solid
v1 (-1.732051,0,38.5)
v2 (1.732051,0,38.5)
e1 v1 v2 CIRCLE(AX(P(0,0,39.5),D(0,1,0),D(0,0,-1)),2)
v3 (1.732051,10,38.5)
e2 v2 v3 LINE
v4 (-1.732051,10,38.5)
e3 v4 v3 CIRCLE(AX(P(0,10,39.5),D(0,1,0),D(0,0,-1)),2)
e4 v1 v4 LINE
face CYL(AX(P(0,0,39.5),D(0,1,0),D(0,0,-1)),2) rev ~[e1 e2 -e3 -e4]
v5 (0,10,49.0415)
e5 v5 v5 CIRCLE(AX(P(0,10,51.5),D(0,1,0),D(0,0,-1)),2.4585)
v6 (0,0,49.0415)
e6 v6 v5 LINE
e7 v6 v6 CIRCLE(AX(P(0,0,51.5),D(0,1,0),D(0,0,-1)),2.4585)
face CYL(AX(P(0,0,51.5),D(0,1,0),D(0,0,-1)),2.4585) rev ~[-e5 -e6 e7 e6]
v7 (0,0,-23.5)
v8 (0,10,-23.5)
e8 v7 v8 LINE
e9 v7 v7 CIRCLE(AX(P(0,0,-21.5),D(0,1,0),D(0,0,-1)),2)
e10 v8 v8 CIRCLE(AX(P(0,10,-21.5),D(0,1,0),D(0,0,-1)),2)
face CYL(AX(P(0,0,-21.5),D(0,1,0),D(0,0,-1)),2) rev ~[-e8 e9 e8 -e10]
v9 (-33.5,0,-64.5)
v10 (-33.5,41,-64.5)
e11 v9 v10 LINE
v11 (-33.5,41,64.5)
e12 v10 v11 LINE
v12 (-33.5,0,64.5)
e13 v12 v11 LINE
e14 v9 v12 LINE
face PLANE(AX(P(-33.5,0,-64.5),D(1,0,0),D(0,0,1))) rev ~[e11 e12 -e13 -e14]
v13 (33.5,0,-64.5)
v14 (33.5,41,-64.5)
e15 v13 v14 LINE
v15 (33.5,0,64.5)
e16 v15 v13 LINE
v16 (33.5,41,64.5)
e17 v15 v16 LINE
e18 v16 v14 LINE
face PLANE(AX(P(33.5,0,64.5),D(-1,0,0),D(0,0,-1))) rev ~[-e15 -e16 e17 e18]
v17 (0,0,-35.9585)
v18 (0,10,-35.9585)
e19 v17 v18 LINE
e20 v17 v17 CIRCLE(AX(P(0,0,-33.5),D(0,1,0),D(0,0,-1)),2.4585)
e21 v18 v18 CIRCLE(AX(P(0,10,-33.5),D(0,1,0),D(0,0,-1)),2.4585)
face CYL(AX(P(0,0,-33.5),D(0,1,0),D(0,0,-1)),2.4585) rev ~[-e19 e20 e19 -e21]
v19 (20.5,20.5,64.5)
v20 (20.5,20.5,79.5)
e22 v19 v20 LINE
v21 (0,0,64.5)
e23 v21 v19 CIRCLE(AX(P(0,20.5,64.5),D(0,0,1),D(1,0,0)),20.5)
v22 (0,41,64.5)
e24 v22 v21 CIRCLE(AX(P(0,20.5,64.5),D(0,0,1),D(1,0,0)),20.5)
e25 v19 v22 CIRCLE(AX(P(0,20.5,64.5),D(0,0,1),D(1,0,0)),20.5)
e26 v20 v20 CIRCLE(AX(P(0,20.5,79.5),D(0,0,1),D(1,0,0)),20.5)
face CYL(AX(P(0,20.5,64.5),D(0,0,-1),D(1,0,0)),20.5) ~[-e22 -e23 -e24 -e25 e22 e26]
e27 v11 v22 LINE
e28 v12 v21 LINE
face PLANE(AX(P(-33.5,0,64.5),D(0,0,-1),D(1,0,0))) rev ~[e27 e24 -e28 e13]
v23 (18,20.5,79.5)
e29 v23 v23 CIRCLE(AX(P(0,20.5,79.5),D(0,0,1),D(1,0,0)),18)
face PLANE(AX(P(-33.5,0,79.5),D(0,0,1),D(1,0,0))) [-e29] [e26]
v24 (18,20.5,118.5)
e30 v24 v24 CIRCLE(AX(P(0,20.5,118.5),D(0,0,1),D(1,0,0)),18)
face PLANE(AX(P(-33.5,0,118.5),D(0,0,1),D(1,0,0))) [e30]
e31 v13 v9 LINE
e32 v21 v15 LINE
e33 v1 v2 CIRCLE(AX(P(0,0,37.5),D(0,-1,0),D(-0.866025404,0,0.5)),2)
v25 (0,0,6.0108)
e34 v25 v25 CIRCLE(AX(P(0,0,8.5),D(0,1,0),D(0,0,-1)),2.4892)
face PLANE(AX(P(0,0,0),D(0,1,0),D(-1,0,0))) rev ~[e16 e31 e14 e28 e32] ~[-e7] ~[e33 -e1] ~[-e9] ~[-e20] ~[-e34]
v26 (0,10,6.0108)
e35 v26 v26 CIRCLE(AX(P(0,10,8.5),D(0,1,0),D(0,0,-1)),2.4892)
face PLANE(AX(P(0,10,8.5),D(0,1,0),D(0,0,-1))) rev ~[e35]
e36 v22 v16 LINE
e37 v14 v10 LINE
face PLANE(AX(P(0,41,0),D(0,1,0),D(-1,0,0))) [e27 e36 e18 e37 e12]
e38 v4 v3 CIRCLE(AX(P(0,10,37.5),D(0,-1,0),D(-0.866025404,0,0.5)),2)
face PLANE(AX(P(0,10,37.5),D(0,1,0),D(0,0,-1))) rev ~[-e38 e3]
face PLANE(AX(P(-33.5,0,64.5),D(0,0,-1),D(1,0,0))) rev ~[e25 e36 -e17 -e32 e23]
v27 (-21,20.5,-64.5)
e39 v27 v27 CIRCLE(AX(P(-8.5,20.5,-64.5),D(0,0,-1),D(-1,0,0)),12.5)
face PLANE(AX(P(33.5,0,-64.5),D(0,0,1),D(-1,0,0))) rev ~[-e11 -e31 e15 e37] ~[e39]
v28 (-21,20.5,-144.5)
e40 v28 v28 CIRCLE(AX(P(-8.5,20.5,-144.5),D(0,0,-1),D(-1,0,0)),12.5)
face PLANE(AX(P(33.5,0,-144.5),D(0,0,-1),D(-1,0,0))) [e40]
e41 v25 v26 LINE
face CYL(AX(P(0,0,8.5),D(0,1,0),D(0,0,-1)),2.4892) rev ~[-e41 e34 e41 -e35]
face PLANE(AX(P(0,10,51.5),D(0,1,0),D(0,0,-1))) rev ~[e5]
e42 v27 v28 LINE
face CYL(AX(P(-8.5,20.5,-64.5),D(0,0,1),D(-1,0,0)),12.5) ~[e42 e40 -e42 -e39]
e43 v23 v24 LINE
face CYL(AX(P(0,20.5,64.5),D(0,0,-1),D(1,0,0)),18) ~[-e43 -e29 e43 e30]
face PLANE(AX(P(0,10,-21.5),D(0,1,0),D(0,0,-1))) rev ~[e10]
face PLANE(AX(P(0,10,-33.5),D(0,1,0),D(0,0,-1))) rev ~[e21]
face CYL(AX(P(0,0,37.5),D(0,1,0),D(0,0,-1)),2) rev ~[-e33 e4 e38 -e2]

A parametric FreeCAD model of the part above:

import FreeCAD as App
import Part
import Sketcher
from FreeCAD import Vector

doc = App.newDocument("Part")
body = doc.addObject("PartDesign::Body", "Body")

sketch1 = body.newObject("Sketcher::SketchObject", "Sketch")
sketch1.AttachmentSupport = (doc.getObject("XZ_Plane"), [""])
sketch1.MapMode = "FlatFace"
sketch1.addGeometry([
    Part.LineSegment(Vector(-34, -64, 0), Vector(-34, 64, 0)),
    Part.LineSegment(Vector(-34, 64, 0), Vector(34, 64, 0)),
    Part.LineSegment(Vector(34, 64, 0), Vector(34, -64, 0)),
    Part.LineSegment(Vector(34, -64, 0), Vector(-34, -64, 0)),
], False)
sketch1.addConstraint([
    Sketcher.Constraint("Coincident", 0, 2, 1, 1),
    Sketcher.Constraint("Coincident", 1, 2, 2, 1),
    Sketcher.Constraint("Coincident", 2, 2, 3, 1),
    Sketcher.Constraint("Coincident", 3, 2, 0, 1),
    Sketcher.Constraint("Vertical", 0),
    Sketcher.Constraint("Horizontal", 1),
    Sketcher.Constraint("Vertical", 2),
    Sketcher.Constraint("Horizontal", 3),
    Sketcher.Constraint("Symmetric", 0, 2, 2, 2, -1, 1),
    Sketcher.Constraint("DistanceX", 1, 1, 1, 2, 67.0),
    Sketcher.Constraint("DistanceY", 0, 1, 0, 2, 129.0),
])
pad1 = body.newObject("PartDesign::Pad", "Pad")
pad1.Profile = sketch1
pad1.Length = 41
pad1.Reversed = True

sketch2 = body.newObject("Sketcher::SketchObject", "Sketch001")
sketch2.AttachmentSupport = (doc.getObject("XY_Plane"), [""])
sketch2.MapMode = "FlatFace"
sketch2.AttachmentOffset = App.Placement(Vector(0, 0, 64.5), App.Rotation())
sketch2.addGeometry(Part.Circle(Vector(0, 20, 0), Vector(0, 0, 1), 18), False)
sketch2.addConstraint([
    Sketcher.Constraint("PointOnObject", 0, 3, -2),
    Sketcher.Constraint("Diameter", 0, 36.0),
    Sketcher.Constraint("DistanceY", -1, 1, 0, 3, 20.5),
])
pad2 = body.newObject("PartDesign::Pad", "Pad001")
pad2.Profile = sketch2
pad2.Length = 54

sketch3 = body.newObject("Sketcher::SketchObject", "Sketch002")
sketch3.AttachmentSupport = (doc.getObject("XY_Plane"), [""])
sketch3.MapMode = "FlatFace"
sketch3.AttachmentOffset = App.Placement(Vector(0, 0, 64.5), App.Rotation())
sketch3.addGeometry([
    Part.Circle(Vector(0, 20, 0), Vector(0, 0, 1), 20),
    Part.Circle(Vector(0, 20, 0), Vector(0, 0, 1), 18),
], False)
sketch3.addConstraint([
    Sketcher.Constraint("Coincident", 1, 3, 0, 3),
    Sketcher.Constraint("PointOnObject", 0, 3, -2),
    Sketcher.Constraint("Diameter", 0, 41.0),
    Sketcher.Constraint("Diameter", 1, 36.0),
    Sketcher.Constraint("DistanceY", -1, 1, 0, 3, 20.5),
])
pad3 = body.newObject("PartDesign::Pad", "Pad002")
pad3.Profile = sketch3
pad3.Length = 15

sketch4 = body.newObject("Sketcher::SketchObject", "Sketch003")
sketch4.AttachmentSupport = (doc.getObject("XY_Plane"), [""])
sketch4.MapMode = "FlatFace"
sketch4.AttachmentOffset = App.Placement(Vector(0, 0, -64.5), App.Rotation())
sketch4.addGeometry(Part.Circle(Vector(-8, 20, 0), Vector(0, 0, 1), 12), False)
sketch4.addConstraint([
    Sketcher.Constraint("Diameter", 0, 25.0),
    Sketcher.Constraint("DistanceX", 0, 3, -1, 1, 8.5),
    Sketcher.Constraint("DistanceY", -1, 1, 0, 3, 20.5),
])
pad4 = body.newObject("PartDesign::Pad", "Pad003")
pad4.Profile = sketch4
pad4.Length = 80
pad4.Reversed = True

sketch5 = body.newObject("Sketcher::SketchObject", "Sketch004")
sketch5.AttachmentSupport = (doc.getObject("XZ_Plane"), [""])
sketch5.MapMode = "FlatFace"
sketch5.addGeometry([
    Part.Circle(Vector(0, 51.5, 0), Vector(0, 0, 1), 2.5),
    Part.Circle(Vector(0, -33.5, 0), Vector(0, 0, 1), 2.5),
], False)
sketch5.addConstraint([
    Sketcher.Constraint("Equal", 0, 1),
    Sketcher.Constraint("PointOnObject", 0, 3, -2),
    Sketcher.Constraint("PointOnObject", 1, 3, -2),
    Sketcher.Constraint("Diameter", 0, 4.917),
    Sketcher.Constraint("DistanceY", 1, 3, 0, 3, 85.0),
    Sketcher.Constraint("DistanceY", -1, 1, 0, 3, 51.5),
])
doc.recompute()
hole = body.newObject("PartDesign::Hole", "Hole")
hole.Profile = sketch5
hole.ThreadType = "None"
hole.Diameter = 4.917
hole.DepthType = "Dimension"
hole.Depth = 10
hole.DrillPoint = "Flat"

sketch6 = body.newObject("Sketcher::SketchObject", "Sketch005")
sketch6.AttachmentSupport = (doc.getObject("XZ_Plane"), [""])
sketch6.MapMode = "FlatFace"
sketch6.addGeometry(Part.Circle(Vector(0, 8.5, 0), Vector(0, 0, 1), 2.5), False)
sketch6.addConstraint([
    Sketcher.Constraint("PointOnObject", 0, 3, -2),
    Sketcher.Constraint("Diameter", 0, 4.9784),
    Sketcher.Constraint("DistanceY", -1, 1, 0, 3, 8.5),
])
doc.recompute()
hole2 = body.newObject("PartDesign::Hole", "Hole001")
hole2.Profile = sketch6
hole2.ThreadType = "None"
hole2.Diameter = 4.9784
hole2.DepthType = "Dimension"
hole2.Depth = 10
hole2.DrillPoint = "Flat"

sketch7 = body.newObject("Sketcher::SketchObject", "Sketch006")
sketch7.AttachmentSupport = (doc.getObject("XZ_Plane"), [""])
sketch7.MapMode = "FlatFace"
sketch7.addGeometry([
    Part.Circle(Vector(0, 39.5, 0), Vector(0, 0, 1), 2),
    Part.Circle(Vector(0, 37.5, 0), Vector(0, 0, 1), 2),
    Part.Circle(Vector(0, -21.5, 0), Vector(0, 0, 1), 2),
], False)
sketch7.addConstraint([
    Sketcher.Constraint("Equal", 0, 1),
    Sketcher.Constraint("Equal", 1, 2),
    Sketcher.Constraint("PointOnObject", 0, 3, -2),
    Sketcher.Constraint("PointOnObject", 1, 3, -2),
    Sketcher.Constraint("PointOnObject", 2, 3, -2),
    Sketcher.Constraint("Diameter", 0, 4.0),
    Sketcher.Constraint("DistanceY", 1, 3, 0, 3, 2.0),
    Sketcher.Constraint("DistanceY", 2, 3, 1, 3, 59.0),
    Sketcher.Constraint("DistanceY", -1, 1, 0, 3, 39.5),
])
doc.recompute()
hole3 = body.newObject("PartDesign::Hole", "Hole002")
hole3.Profile = sketch7
hole3.ThreadType = "None"
hole3.Diameter = 4
hole3.DepthType = "Dimension"
hole3.Depth = 10
hole3.DrillPoint = "Flat"

doc.recompute()
